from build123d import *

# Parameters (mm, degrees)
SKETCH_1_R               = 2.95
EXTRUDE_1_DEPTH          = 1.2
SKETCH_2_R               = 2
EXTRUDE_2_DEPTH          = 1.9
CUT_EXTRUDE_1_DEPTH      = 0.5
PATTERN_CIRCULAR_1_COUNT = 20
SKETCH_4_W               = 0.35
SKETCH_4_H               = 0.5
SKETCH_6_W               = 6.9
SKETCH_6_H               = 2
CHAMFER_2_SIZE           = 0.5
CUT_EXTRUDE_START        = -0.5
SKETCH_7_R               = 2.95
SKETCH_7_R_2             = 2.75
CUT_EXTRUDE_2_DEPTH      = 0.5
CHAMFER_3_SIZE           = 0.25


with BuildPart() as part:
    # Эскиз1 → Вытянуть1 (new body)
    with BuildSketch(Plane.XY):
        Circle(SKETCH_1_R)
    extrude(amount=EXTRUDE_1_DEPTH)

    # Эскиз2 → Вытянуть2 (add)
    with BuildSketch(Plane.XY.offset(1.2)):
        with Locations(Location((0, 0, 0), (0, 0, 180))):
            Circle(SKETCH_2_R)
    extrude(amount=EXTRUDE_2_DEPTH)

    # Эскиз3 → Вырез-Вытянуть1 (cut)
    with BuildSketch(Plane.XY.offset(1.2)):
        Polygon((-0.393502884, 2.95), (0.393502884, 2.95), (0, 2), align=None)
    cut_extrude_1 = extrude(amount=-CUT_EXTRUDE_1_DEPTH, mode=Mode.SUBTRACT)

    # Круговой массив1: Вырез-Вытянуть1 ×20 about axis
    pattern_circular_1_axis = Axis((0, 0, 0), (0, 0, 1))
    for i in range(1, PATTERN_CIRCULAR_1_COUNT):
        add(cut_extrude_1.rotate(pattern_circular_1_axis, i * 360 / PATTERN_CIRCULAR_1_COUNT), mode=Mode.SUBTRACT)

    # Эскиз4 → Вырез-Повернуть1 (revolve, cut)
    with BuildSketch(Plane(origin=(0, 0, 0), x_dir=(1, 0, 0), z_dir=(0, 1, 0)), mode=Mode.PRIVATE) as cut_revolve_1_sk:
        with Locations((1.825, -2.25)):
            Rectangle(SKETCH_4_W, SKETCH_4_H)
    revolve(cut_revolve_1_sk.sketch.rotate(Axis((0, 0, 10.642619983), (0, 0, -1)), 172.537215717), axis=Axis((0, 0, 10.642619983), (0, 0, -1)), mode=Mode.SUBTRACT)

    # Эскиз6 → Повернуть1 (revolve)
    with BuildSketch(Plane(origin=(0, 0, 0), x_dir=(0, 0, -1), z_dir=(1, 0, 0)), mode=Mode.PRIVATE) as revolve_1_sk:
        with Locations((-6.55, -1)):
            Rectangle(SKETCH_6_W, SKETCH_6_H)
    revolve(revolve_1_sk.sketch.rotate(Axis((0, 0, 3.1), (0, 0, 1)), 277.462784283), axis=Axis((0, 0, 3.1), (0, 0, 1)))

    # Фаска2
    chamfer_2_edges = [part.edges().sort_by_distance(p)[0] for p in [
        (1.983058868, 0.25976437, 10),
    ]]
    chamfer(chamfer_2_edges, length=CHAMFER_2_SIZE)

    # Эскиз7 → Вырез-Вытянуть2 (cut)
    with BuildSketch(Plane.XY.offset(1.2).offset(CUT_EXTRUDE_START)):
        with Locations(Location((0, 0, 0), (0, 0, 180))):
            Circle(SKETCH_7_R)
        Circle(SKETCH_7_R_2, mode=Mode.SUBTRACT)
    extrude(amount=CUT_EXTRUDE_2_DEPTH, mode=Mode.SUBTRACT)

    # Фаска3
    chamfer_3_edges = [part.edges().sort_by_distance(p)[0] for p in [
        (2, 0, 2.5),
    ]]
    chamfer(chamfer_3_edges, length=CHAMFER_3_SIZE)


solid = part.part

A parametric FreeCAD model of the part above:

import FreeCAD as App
import Part
import Sketcher
from FreeCAD import Vector
Q = App.Units.Quantity


def edges_at(feature, points):
    """Names of the edges that pass closest to the given points."""
    edges = feature.Shape.Edges
    near = lambda p: min(range(len(edges)), key=lambda i: edges[i].distToShape(Part.Vertex(*p))[0])
    return sorted({f"Edge{near(p) + 1}" for p in points})

doc = App.newDocument("Part")
body = doc.addObject("PartDesign::Body", "Body")

# Sketch on XY plane
sketch1 = body.newObject("Sketcher::SketchObject", "Sketch")
sketch1.AttachmentSupport = (doc.getObject("XY_Plane"), [""])
sketch1.MapMode = "FlatFace"
sketch1.addGeometry(Part.Circle(Vector(0, 0, 0), Vector(0, 0, 1), 3), False)
sketch1.addConstraint(Sketcher.Constraint("Coincident", 0, 3, -1, 1))
sketch1.addConstraint(Sketcher.Constraint("Diameter", 0, Q("5.9 mm")))
pad1 = body.newObject("PartDesign::Pad", "Pad")
pad1.Profile = sketch1
pad1.Length = 1.2

# Sketch on XY plane
sketch2 = body.newObject("Sketcher::SketchObject", "Sketch001")
sketch2.AttachmentSupport = (doc.getObject("XY_Plane"), [""])
sketch2.MapMode = "FlatFace"
sketch2.AttachmentOffset = App.Placement(Vector(0, 0, 1.2), App.Rotation())
sketch2.addGeometry(Part.Circle(Vector(0, 0, 0), Vector(0, 0, 1), 2), False)
sketch2.addConstraint(Sketcher.Constraint("Coincident", 0, 3, -1, 1))
sketch2.addConstraint(Sketcher.Constraint("Diameter", 0, Q("4 mm")))
pad2 = body.newObject("PartDesign::Pad", "Pad001")
pad2.Profile = sketch2
pad2.Length = 1.9

# Sketch on XY plane
sketch3 = body.newObject("Sketcher::SketchObject", "Sketch002")
sketch3.AttachmentSupport = (doc.getObject("XY_Plane"), [""])
sketch3.MapMode = "FlatFace"
sketch3.AttachmentOffset = App.Placement(Vector(0, 0, 1.2), App.Rotation())
sketch3.addGeometry(Part.LineSegment(Vector(0.4, 3, 0), Vector(-0.4, 3, 0)), False)
sketch3.addGeometry(Part.LineSegment(Vector(-0.4, 3, 0), Vector(0, 2, 0)), False)
sketch3.addGeometry(Part.LineSegment(Vector(0, 2, 0), Vector(0.4, 3, 0)), False)
sketch3.addConstraint(Sketcher.Constraint("Coincident", 0, 2, 1, 1))
sketch3.addConstraint(Sketcher.Constraint("Coincident", 1, 2, 2, 1))
sketch3.addConstraint(Sketcher.Constraint("Coincident", 2, 2, 0, 1))
sketch3.addConstraint(Sketcher.Constraint("Horizontal", 0))
sketch3.addConstraint(Sketcher.Constraint("PointOnObject", 1, 2, -2))
sketch3.addConstraint(Sketcher.Constraint("Equal", 1, 2))
sketch3.addConstraint(Sketcher.Constraint("DistanceY", -1, 1, 1, 2, Q("2 mm")))
sketch3.addConstraint(Sketcher.Constraint("Angle", 1, Q("-67.5 deg")))
sketch3.addConstraint(Sketcher.Constraint("DistanceY", -1, 1, 0, 2, Q("2.95 mm")))
pocket1 = body.newObject("PartDesign::Pocket", "Pocket")
pocket1.Profile = sketch3
pocket1.Length = 0.5
doc.recompute()

polarpattern = body.newObject("PartDesign::PolarPattern", "PolarPattern")
polarpattern.Originals = [pocket1]
polarpattern.Axis = (doc.getObject("Z_Axis"), [""])
polarpattern.Angle = 360
polarpattern.Occurrences = 20
body.Tip = polarpattern

# Sketch on XZ plane
sketch4 = body.newObject("Sketcher::SketchObject", "Sketch003")
sketch4.AttachmentSupport = (doc.getObject("XZ_Plane"), [""])
sketch4.MapMode = "FlatFace"
sketch4.addGeometry(Part.LineSegment(Vector(1.65, 2, 0), Vector(1.65, 2.5, 0)), False)
sketch4.addGeometry(Part.LineSegment(Vector(1.65, 2.5, 0), Vector(2, 2.5, 0)), False)
sketch4.addGeometry(Part.LineSegment(Vector(2, 2.5, 0), Vector(2, 2, 0)), False)
sketch4.addGeometry(Part.LineSegment(Vector(2, 2, 0), Vector(1.65, 2, 0)), False)
sketch4.addConstraint(Sketcher.Constraint("Coincident", 0, 2, 1, 1))
sketch4.addConstraint(Sketcher.Constraint("Coincident", 1, 2, 2, 1))
sketch4.addConstraint(Sketcher.Constraint("Coincident", 2, 2, 3, 1))
sketch4.addConstraint(Sketcher.Constraint("Coincident", 3, 2, 0, 1))
sketch4.addConstraint(Sketcher.Constraint("Vertical", 0))
sketch4.addConstraint(Sketcher.Constraint("Horizontal", 1))
sketch4.addConstraint(Sketcher.Constraint("Vertical", 2))
sketch4.addConstraint(Sketcher.Constraint("Horizontal", 3))
sketch4.addConstraint(Sketcher.Constraint("DistanceY", 0, 1, 0, 2, Q("0.5 mm")))
sketch4.addConstraint(Sketcher.Constraint("DistanceX", -1, 1, 1, 2, Q("2 mm")))
sketch4.addConstraint(Sketcher.Constraint("DistanceY", -1, 1, 2, 2, Q("2 mm")))
sketch4.addConstraint(Sketcher.Constraint("DistanceX", 1, 1, 1, 2, Q("0.35 mm")))
groove = body.newObject("PartDesign::Groove", "Groove")
groove.Profile = sketch4
groove.ReferenceAxis = (sketch4, ["V_Axis"])
groove.Angle = 360

# Sketch on YZ plane
sketch5 = body.newObject("Sketcher::SketchObject", "Sketch004")
sketch5.AttachmentSupport = (doc.getObject("YZ_Plane"), [""])
sketch5.MapMode = "FlatFace"
sketch5.addGeometry(Part.LineSegment(Vector(0, 10, 0), Vector(-2, 10, 0)), False)
sketch5.addGeometry(Part.LineSegment(Vector(-2, 10, 0), Vector(-2, 3.1, 0)), False)
sketch5.addGeometry(Part.LineSegment(Vector(-2, 3.1, 0), Vector(0, 3.1, 0)), False)
sketch5.addGeometry(Part.LineSegment(Vector(0, 3.1, 0), Vector(0, 10, 0)), False)
sketch5.addConstraint(Sketcher.Constraint("Coincident", 0, 2, 1, 1))
sketch5.addConstraint(Sketcher.Constraint("Coincident", 1, 2, 2, 1))
sketch5.addConstraint(Sketcher.Constraint("Coincident", 2, 2, 3, 1))
sketch5.addConstraint(Sketcher.Constraint("Coincident", 3, 2, 0, 1))
sketch5.addConstraint(Sketcher.Constraint("Horizontal", 0))
sketch5.addConstraint(Sketcher.Constraint("Vertical", 1))
sketch5.addConstraint(Sketcher.Constraint("Horizontal", 2))
sketch5.addConstraint(Sketcher.Constraint("Vertical", 3))
sketch5.addConstraint(Sketcher.Constraint("PointOnObject", 2, 2, -2))
sketch5.addConstraint(Sketcher.Constraint("DistanceX", 0, 2, 0, 1, Q("2 mm")))
sketch5.addConstraint(Sketcher.Constraint("DistanceY", 1, 2, 1, 1, Q("6.9 mm")))
sketch5.addConstraint(Sketcher.Constraint("DistanceY", -1, 1, 0, 2, Q("10 mm")))
revolution = body.newObject("PartDesign::Revolution", "Revolution")
revolution.Profile = sketch5
revolution.ReferenceAxis = (sketch5, ["V_Axis"])
revolution.Angle = 360
doc.recompute()

chamfer = body.newObject("PartDesign::Chamfer", "Chamfer")
chamfer.Base = (revolution, edges_at(revolution, [(1.983, 0.26, 10)]))
chamfer.Size = 0.5

# Sketch on XY plane
sketch6 = body.newObject("Sketcher::SketchObject", "Sketch005")
sketch6.AttachmentSupport = (doc.getObject("XY_Plane"), [""])
sketch6.MapMode = "FlatFace"
sketch6.AttachmentOffset = App.Placement(Vector(0, 0, 0.7), App.Rotation())
sketch6.addGeometry(Part.Circle(Vector(0, 0, 0), Vector(0, 0, 1), 3), False)
sketch6.addGeometry(Part.Circle(Vector(0, 0, 0), Vector(0, 0, 1), 2.8), False)
sketch6.addConstraint(Sketcher.Constraint("Coincident", 0, 3, -1, 1))
sketch6.addConstraint(Sketcher.Constraint("Coincident", 1, 3, -1, 1))
sketch6.addConstraint(Sketcher.Constraint("Diameter", 0, Q("5.9 mm")))
sketch6.addConstraint(Sketcher.Constraint("Diameter", 1, Q("5.5 mm")))
pocket2 = body.newObject("PartDesign::Pocket", "Pocket001")
pocket2.Profile = sketch6
pocket2.Length = 0.5
pocket2.Reversed = True
doc.recompute()

chamfer2 = body.newObject("PartDesign::Chamfer", "Chamfer001")
chamfer2.Base = (pocket2, edges_at(pocket2, [(2, 0, 2.5)]))
chamfer2.Size = 0.25

doc.recompute()
